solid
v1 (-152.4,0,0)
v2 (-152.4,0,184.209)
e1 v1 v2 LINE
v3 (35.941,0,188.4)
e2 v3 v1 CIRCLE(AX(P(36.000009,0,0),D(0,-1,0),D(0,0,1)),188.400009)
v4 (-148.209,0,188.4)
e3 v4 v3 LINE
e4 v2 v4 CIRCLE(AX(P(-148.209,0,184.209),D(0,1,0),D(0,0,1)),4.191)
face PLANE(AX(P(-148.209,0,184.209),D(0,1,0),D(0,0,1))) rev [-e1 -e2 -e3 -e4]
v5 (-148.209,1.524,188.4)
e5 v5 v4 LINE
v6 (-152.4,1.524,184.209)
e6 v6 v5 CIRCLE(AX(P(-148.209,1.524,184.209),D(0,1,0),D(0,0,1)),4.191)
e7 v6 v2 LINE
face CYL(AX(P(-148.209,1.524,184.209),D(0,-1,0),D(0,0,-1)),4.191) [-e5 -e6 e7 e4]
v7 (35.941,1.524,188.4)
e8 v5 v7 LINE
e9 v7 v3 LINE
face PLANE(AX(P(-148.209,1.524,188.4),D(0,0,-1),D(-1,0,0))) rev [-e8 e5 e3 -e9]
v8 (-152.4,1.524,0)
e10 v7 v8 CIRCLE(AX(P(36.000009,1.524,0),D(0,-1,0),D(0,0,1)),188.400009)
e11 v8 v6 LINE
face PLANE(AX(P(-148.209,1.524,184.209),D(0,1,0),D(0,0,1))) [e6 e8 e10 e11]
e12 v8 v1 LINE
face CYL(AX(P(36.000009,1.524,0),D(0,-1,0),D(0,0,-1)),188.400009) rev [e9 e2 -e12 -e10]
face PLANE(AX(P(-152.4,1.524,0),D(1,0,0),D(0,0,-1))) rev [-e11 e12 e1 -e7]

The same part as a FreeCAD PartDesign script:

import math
import FreeCAD as App
import Part
import Sketcher
from FreeCAD import Vector
Q = App.Units.Quantity

doc = App.newDocument("Part")
body = doc.addObject("PartDesign::Body", "Body")

# Sketch on XZ plane
sketch1 = doc.addObject("Sketcher::SketchObject", "Sketch")
body.addObject(sketch1)
sketch1.AttachmentSupport = (doc.XZ_Plane, [""])
sketch1.MapMode = "FlatFace"
sketch1.addGeometry([
    Part.LineSegment(Vector(-152.4, 0, 0), Vector(-152.4, 184.2, 0)),
    Part.ArcOfCircle(Part.Circle(Vector(-148.2, 184.2, 0), Vector(0, 0, 1), 4.2), math.radians(90), math.radians(180)),
    Part.LineSegment(Vector(-148.2, 188.4, 0), Vector(35.9, 188.4, 0)),
    Part.ArcOfCircle(Part.Circle(Vector(36, 0, 0), Vector(0, 0, 1), 188.4), math.radians(90), math.radians(180)),
], False)
sketch1.addConstraint([
    Sketcher.Constraint("Tangent", 0, 2, 1, 2),
    Sketcher.Constraint("Tangent", 1, 1, 2, 1),
    Sketcher.Constraint("Coincident", 2, 2, 3, 1),
    Sketcher.Constraint("Tangent", 3, 2, 0, 1),
    Sketcher.Constraint("Vertical", 0),
    Sketcher.Constraint("Horizontal", 2),
    Sketcher.Constraint("PointOnObject", 3, 3, -1),
    Sketcher.Constraint("DistanceX", 0, 2, -1, 1, Q("6 in")),
    Sketcher.Constraint("Radius", 1, Q("0.165 in")),
    Sketcher.Constraint("DistanceX", 2, 1, 2, 2, Q("7.25 in")),
    Sketcher.Constraint("Radius", 3, 188.400009),
])
pad1 = doc.addObject("PartDesign::Pad", "Pad")
body.addObject(pad1)
pad1.Profile = sketch1
pad1.Length = Q("0.06 in")
pad1.Reversed = True

doc.recompute()
